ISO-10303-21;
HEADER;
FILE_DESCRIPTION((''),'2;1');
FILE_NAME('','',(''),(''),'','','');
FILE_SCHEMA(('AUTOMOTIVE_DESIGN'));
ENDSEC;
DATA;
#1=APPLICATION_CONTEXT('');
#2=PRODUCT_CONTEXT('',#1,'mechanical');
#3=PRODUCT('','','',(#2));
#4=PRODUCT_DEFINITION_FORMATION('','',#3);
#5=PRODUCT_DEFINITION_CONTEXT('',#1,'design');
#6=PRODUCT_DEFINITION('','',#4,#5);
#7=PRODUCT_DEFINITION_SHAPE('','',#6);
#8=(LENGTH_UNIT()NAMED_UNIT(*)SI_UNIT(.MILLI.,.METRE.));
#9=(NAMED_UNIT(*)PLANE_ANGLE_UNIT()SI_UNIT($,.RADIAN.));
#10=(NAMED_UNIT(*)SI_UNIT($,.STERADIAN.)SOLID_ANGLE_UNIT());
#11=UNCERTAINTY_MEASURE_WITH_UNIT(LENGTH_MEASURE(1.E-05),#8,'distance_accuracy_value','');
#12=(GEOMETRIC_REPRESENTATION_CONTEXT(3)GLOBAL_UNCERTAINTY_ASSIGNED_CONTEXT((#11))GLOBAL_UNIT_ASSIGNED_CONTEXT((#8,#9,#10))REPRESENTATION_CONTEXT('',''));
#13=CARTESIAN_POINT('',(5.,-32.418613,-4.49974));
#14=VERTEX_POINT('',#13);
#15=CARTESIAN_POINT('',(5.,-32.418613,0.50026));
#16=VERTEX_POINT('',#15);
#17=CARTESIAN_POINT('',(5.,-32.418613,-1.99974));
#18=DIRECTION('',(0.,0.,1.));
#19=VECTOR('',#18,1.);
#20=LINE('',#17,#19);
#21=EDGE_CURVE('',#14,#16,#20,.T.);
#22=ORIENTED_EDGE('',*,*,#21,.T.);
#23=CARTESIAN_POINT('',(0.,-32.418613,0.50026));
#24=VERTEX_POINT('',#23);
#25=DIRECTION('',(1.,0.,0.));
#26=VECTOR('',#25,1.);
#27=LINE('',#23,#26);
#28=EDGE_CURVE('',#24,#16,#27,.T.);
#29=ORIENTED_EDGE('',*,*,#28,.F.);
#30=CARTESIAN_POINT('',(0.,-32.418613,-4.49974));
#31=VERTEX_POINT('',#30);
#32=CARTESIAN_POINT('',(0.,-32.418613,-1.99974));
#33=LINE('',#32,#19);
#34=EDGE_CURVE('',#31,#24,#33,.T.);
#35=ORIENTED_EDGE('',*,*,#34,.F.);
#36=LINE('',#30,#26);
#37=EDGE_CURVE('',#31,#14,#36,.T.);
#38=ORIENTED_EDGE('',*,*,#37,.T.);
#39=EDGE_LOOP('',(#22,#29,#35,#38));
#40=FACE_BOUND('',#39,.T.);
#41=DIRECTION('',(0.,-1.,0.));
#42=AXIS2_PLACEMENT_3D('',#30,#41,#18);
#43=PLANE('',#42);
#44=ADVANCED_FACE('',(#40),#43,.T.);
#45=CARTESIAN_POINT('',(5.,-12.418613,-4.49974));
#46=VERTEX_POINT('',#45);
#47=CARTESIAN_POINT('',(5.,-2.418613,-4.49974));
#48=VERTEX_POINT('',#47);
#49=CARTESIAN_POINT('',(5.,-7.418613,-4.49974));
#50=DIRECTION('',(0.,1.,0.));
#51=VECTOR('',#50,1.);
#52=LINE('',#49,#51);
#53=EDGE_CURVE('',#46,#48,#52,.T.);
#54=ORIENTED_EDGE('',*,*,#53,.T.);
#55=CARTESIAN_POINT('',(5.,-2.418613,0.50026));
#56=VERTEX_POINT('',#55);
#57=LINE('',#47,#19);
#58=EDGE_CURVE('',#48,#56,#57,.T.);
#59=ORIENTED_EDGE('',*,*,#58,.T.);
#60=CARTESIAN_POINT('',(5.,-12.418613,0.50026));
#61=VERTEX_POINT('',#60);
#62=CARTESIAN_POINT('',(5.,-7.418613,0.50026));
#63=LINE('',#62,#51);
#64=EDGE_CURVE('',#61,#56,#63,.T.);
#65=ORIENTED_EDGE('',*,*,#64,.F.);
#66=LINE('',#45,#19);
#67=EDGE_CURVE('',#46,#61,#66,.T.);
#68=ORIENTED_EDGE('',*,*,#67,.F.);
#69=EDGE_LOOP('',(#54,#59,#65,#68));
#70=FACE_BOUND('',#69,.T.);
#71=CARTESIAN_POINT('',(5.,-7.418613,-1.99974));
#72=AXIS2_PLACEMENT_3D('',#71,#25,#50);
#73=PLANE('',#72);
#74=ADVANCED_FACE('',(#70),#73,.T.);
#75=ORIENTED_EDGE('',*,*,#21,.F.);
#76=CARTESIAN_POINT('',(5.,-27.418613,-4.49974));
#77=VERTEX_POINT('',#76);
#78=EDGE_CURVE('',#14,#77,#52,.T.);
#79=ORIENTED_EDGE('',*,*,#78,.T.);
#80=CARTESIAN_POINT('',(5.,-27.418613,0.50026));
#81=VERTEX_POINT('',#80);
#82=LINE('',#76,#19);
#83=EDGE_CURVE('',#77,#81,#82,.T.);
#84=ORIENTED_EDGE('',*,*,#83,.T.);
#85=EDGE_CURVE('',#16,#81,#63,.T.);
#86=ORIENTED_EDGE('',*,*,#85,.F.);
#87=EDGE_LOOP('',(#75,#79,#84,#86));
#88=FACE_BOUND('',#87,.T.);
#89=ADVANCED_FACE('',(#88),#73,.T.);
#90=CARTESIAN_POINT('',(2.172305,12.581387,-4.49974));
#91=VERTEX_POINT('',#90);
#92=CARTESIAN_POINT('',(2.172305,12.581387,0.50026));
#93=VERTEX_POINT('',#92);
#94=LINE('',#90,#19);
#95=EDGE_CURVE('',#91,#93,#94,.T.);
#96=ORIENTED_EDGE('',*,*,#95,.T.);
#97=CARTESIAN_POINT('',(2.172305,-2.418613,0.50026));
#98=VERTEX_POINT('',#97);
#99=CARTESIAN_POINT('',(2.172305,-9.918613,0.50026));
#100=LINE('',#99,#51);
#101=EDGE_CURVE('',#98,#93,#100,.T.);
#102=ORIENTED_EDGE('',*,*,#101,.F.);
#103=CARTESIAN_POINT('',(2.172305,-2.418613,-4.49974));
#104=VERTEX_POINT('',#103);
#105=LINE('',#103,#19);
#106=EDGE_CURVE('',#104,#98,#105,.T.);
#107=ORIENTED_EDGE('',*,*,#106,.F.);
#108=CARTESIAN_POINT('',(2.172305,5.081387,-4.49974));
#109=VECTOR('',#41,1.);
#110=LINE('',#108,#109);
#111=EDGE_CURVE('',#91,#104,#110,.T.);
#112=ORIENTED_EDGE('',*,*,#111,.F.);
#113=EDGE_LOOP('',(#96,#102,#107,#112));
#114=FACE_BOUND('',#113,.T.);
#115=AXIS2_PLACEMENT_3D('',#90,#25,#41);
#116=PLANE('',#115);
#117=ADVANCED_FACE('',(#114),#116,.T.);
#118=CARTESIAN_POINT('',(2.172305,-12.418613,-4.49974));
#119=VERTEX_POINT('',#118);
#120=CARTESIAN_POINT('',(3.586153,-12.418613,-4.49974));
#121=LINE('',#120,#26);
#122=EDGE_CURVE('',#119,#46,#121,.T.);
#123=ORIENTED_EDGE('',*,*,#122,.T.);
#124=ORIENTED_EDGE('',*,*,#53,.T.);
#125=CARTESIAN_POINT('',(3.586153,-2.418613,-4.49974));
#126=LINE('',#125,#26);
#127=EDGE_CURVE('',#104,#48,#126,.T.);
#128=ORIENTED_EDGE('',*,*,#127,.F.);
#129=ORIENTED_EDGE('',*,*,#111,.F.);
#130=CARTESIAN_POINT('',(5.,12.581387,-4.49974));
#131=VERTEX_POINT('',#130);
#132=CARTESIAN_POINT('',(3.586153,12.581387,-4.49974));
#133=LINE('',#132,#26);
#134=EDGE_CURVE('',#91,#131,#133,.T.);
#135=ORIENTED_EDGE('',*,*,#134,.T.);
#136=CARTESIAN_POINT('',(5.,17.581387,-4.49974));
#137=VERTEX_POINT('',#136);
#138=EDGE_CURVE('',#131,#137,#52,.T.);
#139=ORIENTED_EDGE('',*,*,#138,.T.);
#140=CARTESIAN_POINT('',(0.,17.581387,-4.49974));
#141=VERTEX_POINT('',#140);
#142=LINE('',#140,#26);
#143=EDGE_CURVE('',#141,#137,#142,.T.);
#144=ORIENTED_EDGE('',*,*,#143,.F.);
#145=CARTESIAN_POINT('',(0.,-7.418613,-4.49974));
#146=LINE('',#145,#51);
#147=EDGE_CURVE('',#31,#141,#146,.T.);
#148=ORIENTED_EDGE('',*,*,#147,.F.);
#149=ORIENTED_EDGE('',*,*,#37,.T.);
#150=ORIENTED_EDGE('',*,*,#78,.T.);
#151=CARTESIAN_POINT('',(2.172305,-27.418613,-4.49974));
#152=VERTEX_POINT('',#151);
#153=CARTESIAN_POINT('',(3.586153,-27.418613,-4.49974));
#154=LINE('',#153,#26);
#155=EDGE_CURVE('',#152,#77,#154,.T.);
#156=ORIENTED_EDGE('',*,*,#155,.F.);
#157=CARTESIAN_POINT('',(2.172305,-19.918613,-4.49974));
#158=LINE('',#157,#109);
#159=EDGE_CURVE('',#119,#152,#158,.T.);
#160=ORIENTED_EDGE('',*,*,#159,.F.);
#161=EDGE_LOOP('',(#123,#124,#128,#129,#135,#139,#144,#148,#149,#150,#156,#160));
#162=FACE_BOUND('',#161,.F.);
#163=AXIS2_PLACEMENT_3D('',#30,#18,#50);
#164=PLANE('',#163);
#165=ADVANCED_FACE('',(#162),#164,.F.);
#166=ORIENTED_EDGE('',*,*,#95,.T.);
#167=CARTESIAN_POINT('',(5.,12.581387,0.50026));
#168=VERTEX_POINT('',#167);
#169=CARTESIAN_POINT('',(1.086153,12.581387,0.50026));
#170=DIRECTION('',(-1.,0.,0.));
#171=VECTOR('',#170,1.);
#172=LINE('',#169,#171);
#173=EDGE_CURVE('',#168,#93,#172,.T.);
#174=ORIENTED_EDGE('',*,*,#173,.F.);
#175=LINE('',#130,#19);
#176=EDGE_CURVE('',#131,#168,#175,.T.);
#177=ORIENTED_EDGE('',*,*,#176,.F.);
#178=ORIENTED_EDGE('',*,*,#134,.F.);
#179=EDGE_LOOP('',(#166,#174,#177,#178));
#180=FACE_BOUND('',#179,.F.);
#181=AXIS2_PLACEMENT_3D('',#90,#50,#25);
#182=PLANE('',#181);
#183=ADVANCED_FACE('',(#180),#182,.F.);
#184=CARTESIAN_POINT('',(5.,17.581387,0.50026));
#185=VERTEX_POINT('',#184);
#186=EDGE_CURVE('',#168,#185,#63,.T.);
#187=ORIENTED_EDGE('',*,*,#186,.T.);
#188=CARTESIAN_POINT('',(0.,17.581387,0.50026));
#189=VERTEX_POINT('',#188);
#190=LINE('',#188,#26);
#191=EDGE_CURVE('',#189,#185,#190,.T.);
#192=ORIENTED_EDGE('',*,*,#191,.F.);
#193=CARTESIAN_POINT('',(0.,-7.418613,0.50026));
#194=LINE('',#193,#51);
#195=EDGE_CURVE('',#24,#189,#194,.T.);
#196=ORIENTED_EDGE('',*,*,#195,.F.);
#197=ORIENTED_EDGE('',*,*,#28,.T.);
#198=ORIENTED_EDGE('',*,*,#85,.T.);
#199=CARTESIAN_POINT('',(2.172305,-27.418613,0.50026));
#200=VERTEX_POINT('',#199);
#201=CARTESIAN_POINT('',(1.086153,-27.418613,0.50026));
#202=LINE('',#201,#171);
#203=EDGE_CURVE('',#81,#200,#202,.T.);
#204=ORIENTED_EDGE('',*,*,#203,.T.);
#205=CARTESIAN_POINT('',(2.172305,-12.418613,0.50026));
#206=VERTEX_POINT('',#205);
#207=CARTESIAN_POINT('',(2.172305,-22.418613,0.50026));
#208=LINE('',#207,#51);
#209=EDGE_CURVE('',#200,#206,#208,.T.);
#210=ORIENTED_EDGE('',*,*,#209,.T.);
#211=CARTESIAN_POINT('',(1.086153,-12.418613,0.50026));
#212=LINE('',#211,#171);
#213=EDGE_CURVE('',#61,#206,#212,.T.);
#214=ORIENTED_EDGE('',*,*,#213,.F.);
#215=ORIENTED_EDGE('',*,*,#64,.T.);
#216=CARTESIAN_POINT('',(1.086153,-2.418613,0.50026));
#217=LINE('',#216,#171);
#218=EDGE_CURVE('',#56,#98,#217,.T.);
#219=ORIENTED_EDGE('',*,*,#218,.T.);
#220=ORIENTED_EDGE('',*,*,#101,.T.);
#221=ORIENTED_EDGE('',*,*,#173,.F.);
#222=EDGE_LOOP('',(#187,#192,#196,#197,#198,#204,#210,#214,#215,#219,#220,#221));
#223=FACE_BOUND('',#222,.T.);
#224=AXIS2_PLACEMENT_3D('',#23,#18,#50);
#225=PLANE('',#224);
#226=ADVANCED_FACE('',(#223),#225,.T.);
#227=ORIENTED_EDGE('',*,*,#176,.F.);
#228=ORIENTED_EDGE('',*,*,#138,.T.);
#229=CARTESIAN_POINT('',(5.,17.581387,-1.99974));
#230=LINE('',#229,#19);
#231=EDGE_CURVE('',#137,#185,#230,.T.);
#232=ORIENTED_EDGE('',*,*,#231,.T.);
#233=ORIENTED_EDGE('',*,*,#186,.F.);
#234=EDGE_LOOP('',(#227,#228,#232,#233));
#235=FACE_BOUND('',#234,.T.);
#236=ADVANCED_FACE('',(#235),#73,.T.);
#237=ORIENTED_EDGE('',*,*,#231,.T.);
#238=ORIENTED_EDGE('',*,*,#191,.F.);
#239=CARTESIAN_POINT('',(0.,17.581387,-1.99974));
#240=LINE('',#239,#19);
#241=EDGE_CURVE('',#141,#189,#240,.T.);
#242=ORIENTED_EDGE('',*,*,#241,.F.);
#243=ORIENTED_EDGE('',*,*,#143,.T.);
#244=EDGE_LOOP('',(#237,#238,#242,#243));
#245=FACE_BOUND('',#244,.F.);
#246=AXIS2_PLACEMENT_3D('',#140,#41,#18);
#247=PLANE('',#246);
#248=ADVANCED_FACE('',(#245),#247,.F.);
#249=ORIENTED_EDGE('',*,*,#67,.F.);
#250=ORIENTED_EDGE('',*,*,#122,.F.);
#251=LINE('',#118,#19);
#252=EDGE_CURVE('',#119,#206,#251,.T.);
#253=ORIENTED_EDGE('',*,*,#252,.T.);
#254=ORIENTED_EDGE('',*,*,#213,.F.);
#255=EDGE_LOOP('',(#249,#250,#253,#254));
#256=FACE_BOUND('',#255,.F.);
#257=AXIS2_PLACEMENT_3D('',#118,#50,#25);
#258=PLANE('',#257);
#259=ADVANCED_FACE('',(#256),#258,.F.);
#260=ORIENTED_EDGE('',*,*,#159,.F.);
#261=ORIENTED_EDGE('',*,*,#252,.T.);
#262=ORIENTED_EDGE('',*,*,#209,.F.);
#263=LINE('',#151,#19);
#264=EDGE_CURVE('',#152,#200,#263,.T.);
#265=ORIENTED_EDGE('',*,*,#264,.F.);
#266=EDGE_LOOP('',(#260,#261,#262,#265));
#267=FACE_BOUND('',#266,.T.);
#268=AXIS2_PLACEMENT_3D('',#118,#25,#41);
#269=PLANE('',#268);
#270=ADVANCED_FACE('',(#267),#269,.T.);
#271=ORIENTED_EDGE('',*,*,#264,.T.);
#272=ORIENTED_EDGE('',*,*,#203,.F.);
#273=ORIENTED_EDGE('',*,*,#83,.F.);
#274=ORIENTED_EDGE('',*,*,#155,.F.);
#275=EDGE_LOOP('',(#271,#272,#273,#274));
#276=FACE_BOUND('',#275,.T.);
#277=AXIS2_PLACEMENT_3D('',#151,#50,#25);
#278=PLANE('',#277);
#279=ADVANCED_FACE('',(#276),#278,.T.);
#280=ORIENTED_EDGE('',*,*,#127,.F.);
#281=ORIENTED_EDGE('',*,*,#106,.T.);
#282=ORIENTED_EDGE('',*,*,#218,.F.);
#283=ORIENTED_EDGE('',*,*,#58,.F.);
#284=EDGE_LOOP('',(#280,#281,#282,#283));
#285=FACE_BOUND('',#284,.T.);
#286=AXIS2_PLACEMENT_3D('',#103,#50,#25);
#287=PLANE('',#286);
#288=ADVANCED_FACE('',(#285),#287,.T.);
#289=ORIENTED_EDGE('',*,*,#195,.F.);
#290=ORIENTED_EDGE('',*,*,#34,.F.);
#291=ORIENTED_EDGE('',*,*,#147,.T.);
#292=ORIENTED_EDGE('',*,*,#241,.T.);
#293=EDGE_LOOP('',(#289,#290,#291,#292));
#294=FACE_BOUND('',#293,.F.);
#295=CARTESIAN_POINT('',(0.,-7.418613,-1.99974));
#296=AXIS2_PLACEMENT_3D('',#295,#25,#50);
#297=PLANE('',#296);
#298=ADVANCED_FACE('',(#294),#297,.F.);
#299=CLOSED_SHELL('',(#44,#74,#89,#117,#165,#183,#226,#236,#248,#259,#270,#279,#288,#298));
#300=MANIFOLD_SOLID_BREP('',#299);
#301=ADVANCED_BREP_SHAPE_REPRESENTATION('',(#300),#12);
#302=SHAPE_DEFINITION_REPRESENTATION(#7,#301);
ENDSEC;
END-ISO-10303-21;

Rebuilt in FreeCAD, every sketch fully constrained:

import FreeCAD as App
import Part
import Sketcher
from FreeCAD import Vector
Q = App.Units.Quantity

doc = App.newDocument("Part")
body = doc.addObject("PartDesign::Body", "Body")

sketch1 = doc.addObject("Sketcher::SketchObject", "Sketch")
body.addObject(sketch1)
sketch1.AttachmentSupport = (doc.YZ_Plane, [""])
sketch1.MapMode = "FlatFace"
sketch1.addGeometry([
    Part.LineSegment(Vector(-32, 1, 0), Vector(-32, -4, 0)),
    Part.LineSegment(Vector(-32, -4, 0), Vector(18, -4, 0)),
    Part.LineSegment(Vector(18, -4, 0), Vector(18, 1, 0)),
    Part.LineSegment(Vector(18, 1, 0), Vector(-32, 1, 0)),
], False)
sketch1.addConstraint([
    Sketcher.Constraint("Coincident", 0, 2, 1, 1),
    Sketcher.Constraint("Coincident", 1, 2, 2, 1),
    Sketcher.Constraint("Coincident", 2, 2, 3, 1),
    Sketcher.Constraint("Coincident", 3, 2, 0, 1),
    Sketcher.Constraint("Vertical", 0),
    Sketcher.Constraint("Horizontal", 1),
    Sketcher.Constraint("Vertical", 2),
    Sketcher.Constraint("Horizontal", 3),
    Sketcher.Constraint("DistanceX", 1, 1, 1, 2, Q("50 mm")),
    Sketcher.Constraint("DistanceY", 0, 2, 0, 1, Q("5 mm")),
    Sketcher.Constraint("DistanceY", 0, 2, -1, 1, Q("4.49974 mm")),
    Sketcher.Constraint("DistanceX", 0, 2, -1, 1, Q("32.418613 mm")),
])
pad1 = doc.addObject("PartDesign::Pad", "Pad")
body.addObject(pad1)
pad1.Profile = sketch1
pad1.Length = 5

sketch2 = doc.addObject("Sketcher::SketchObject", "Sketch001")
body.addObject(sketch2)
sketch2.AttachmentSupport = (doc.XY_Plane, [""])
sketch2.MapMode = "FlatFace"
sketch2.AttachmentOffset = App.Placement(Vector(0, 0, -4.49974), App.Rotation())
sketch2.addGeometry([
    Part.LineSegment(Vector(2.2, -27.4, 0), Vector(2.2, -12.4, 0)),
    Part.LineSegment(Vector(2.2, -12.4, 0), Vector(5, -12.4, 0)),
    Part.LineSegment(Vector(5, -12.4, 0), Vector(5, -27.4, 0)),
    Part.LineSegment(Vector(5, -27.4, 0), Vector(2.2, -27.4, 0)),
    Part.LineSegment(Vector(2.2, -2.4, 0), Vector(2.2, 12.6, 0)),
    Part.LineSegment(Vector(2.2, 12.6, 0), Vector(5, 12.6, 0)),
    Part.LineSegment(Vector(5, 12.6, 0), Vector(5, -2.4, 0)),
    Part.LineSegment(Vector(5, -2.4, 0), Vector(2.2, -2.4, 0)),
], False)
sketch2.addConstraint([
    Sketcher.Constraint("Coincident", 0, 2, 1, 1),
    Sketcher.Constraint("Coincident", 1, 2, 2, 1),
    Sketcher.Constraint("Coincident", 2, 2, 3, 1),
    Sketcher.Constraint("Coincident", 3, 2, 0, 1),
    Sketcher.Constraint("Coincident", 4, 2, 5, 1),
    Sketcher.Constraint("Coincident", 5, 2, 6, 1),
    Sketcher.Constraint("Coincident", 6, 2, 7, 1),
    Sketcher.Constraint("Coincident", 7, 2, 4, 1),
    Sketcher.Constraint("Vertical", 0),
    Sketcher.Constraint("Horizontal", 1),
    Sketcher.Constraint("Vertical", 2),
    Sketcher.Constraint("Horizontal", 3),
    Sketcher.Constraint("Vertical", 4),
    Sketcher.Constraint("Horizontal", 5),
    Sketcher.Constraint("Vertical", 6),
    Sketcher.Constraint("Horizontal", 7),
    Sketcher.Constraint("Vertical", 3, 2, 4, 2),
    Sketcher.Constraint("Vertical", 2, 2, 5, 2),
    Sketcher.Constraint("Equal", 2, 4),
    Sketcher.Constraint("DistanceY", 0, 1, 0, 2, Q("15 mm")),
    Sketcher.Constraint("DistanceX", -1, 1, 1, 2, Q("5 mm")),
    Sketcher.Constraint("DistanceY", 0, 2, 4, 2, Q("25 mm")),
    Sketcher.Constraint("DistanceX", 1, 1, 1, 2, Q("2.827695 mm")),
    Sketcher.Constraint("DistanceY", 0, 2, -1, 1, Q("12.418613 mm")),
])
pocket1 = doc.addObject("PartDesign::Pocket", "Pocket")
body.addObject(pocket1)
pocket1.Profile = sketch2
pocket1.Length = 5.1
pocket1.Reversed = True

doc.recompute()
